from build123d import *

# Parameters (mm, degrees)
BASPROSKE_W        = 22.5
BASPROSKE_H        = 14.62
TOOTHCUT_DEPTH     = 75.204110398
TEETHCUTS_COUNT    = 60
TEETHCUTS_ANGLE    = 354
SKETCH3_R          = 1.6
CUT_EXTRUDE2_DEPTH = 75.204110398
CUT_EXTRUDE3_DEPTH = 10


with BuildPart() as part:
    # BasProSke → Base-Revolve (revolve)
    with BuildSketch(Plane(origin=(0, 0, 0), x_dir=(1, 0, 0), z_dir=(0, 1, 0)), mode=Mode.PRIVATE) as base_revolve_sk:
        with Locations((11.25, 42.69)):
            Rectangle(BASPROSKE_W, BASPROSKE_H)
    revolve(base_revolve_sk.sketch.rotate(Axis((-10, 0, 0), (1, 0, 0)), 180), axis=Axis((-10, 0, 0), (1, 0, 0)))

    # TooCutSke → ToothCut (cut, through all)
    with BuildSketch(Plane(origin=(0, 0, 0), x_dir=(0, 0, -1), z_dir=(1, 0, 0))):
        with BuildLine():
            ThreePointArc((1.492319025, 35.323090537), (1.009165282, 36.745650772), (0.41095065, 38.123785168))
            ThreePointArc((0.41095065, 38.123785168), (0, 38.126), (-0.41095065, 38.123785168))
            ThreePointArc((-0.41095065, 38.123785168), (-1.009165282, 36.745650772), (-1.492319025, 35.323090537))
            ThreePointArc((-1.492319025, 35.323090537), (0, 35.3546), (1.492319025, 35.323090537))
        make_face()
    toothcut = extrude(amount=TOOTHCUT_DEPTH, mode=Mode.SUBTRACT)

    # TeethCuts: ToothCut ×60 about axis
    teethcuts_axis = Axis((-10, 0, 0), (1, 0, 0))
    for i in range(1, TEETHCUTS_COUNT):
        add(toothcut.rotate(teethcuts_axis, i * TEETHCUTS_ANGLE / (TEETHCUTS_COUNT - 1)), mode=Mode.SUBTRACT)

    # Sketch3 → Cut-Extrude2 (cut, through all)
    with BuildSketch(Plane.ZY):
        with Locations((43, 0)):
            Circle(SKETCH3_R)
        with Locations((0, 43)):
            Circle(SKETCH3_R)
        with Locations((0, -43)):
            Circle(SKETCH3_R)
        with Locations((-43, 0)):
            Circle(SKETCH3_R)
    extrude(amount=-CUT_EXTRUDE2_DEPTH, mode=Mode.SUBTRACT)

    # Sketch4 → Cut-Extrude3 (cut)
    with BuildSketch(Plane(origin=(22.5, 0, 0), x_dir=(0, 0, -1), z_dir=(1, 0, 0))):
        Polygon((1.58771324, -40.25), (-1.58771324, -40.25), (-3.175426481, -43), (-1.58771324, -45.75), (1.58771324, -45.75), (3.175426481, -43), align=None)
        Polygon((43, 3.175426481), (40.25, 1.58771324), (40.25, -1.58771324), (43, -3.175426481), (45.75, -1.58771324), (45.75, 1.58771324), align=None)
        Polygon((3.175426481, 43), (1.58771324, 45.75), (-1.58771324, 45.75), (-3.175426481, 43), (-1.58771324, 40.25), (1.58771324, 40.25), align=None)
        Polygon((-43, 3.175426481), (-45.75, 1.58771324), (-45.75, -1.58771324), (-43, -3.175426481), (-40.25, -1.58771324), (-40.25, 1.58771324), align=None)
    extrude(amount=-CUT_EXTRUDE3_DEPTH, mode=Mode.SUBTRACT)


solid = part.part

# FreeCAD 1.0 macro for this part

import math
import FreeCAD as App
import Part
import Sketcher
from FreeCAD import Vector
Q = App.Units.Quantity


def add_polygon(sketch, points):
    """Adds a closed chain of lines whose ends are joined by coincident constraints."""
    first, n = sketch.GeometryCount, len(points)
    for a, b in zip(points, points[1:] + points[:1]):
        sketch.addGeometry(Part.LineSegment(App.Vector(*a, 0), App.Vector(*b, 0)), False)
    for i in range(n):
        sketch.addConstraint(Sketcher.Constraint("Coincident", first + i, 2, first + (i + 1) % n, 1))

doc = App.newDocument("Part")
body = doc.addObject("PartDesign::Body", "Body")

sketch1 = body.newObject("Sketcher::SketchObject", "Sketch")
sketch1.AttachmentSupport = (doc.getObject("XZ_Plane"), [""])
sketch1.MapMode = "FlatFace"
add_polygon(sketch1, [(0, -50), (0, -35.38), (22.5, -35.38), (22.5, -50)])
sketch1.addConstraint(Sketcher.Constraint("Vertical", 0))
sketch1.addConstraint(Sketcher.Constraint("Horizontal", 1))
sketch1.addConstraint(Sketcher.Constraint("Vertical", 2))
sketch1.addConstraint(Sketcher.Constraint("Horizontal", 3))
sketch1.addConstraint(Sketcher.Constraint("PointOnObject", 0, 2, -2))
sketch1.addConstraint(Sketcher.Constraint("DistanceX", 1, 1, 1, 2, Q("22.5 mm")))
sketch1.addConstraint(Sketcher.Constraint("DistanceY", 2, 2, -1, 1, Q("50 mm")))
sketch1.addConstraint(Sketcher.Constraint("DistanceY", 0, 1, 0, 2, Q("14.62 mm")))
revolution = body.newObject("PartDesign::Revolution", "Revolution")
revolution.Profile = sketch1
revolution.ReferenceAxis = (sketch1, ["H_Axis"])
revolution.Angle = 360

sketch2 = body.newObject("Sketcher::SketchObject", "Sketch001")
sketch2.AttachmentSupport = (doc.getObject("YZ_Plane"), [""])
sketch2.MapMode = "FlatFace"
sketch2.addGeometry(Part.ArcOfCircle(Part.Circle(Vector(30.154153, 16.062512, 0), Vector(0, 0, 1), 18.3), math.radians(-73.593183), math.radians(-64.182949)), False)
sketch2.addGeometry(Part.ArcOfCircle(Part.Circle(Vector(0.000006, 0, 0), Vector(0, 0, 1), 38.125994), math.radians(-0.617589), math.radians(0.617589)), False)
sketch2.addGeometry(Part.ArcOfCircle(Part.Circle(Vector(30.154153, -16.062512, 0), Vector(0, 0, 1), 18.3), math.radians(64.182949), math.radians(73.593183)), False)
sketch2.addGeometry(Part.ArcOfCircle(Part.Circle(Vector(0, 0, 0), Vector(0, 0, 1), 35.3546), math.radians(-2.419176), math.radians(2.419176)), False)
sketch2.addConstraint(Sketcher.Constraint("Coincident", 0, 2, 1, 1))
sketch2.addConstraint(Sketcher.Constraint("Coincident", 1, 2, 2, 1))
sketch2.addConstraint(Sketcher.Constraint("Coincident", 2, 2, 3, 2))
sketch2.addConstraint(Sketcher.Constraint("Coincident", 3, 1, 0, 1))
sketch2.addConstraint(Sketcher.Constraint("Coincident", 1, 3, -1, 1))
sketch2.addConstraint(Sketcher.Constraint("Coincident", 3, 3, -1, 1))
sketch2.addConstraint(Sketcher.Constraint("Equal", 0, 2))
sketch2.addConstraint(Sketcher.Constraint("Symmetric", 0, 3, 2, 3, -1))
sketch2.addConstraint(Sketcher.Constraint("Radius", 0, Q("18.3 mm")))
sketch2.addConstraint(Sketcher.Constraint("Radius", 3, Q("35.3546 mm")))
sketch2.addConstraint(Sketcher.Constraint("Radius", 1, Q("38.125994 mm")))
sketch2.addConstraint(Sketcher.Constraint("DistanceY", 0, 2, 1, 2, Q("0.821901 mm")))
sketch2.addConstraint(Sketcher.Constraint("DistanceY", -1, 1, 0, 3, Q("16.062512 mm")))
pocket1 = body.newObject("PartDesign::Pocket", "Pocket")
pocket1.Profile = sketch2
pocket1.Type = "ThroughAll"
pocket1.Reversed = True
doc.recompute()

polarpattern = body.newObject("PartDesign::PolarPattern", "PolarPattern")
polarpattern.Originals = [pocket1]
polarpattern.Axis = (doc.getObject("X_Axis"), [""])
polarpattern.Angle = 360
polarpattern.Occurrences = 60
body.Tip = polarpattern

sketch3 = body.newObject("Sketcher::SketchObject", "Sketch002")
sketch3.AttachmentSupport = (doc.getObject("YZ_Plane"), [""])
sketch3.MapMode = "FlatFace"
sketch3.addGeometry(Part.Circle(Vector(0, 43, 0), Vector(0, 0, 1), 1.6), False)
sketch3.addGeometry(Part.Circle(Vector(43, 0, 0), Vector(0, 0, 1), 1.6), False)
sketch3.addGeometry(Part.Circle(Vector(-43, 0, 0), Vector(0, 0, 1), 1.6), False)
sketch3.addGeometry(Part.Circle(Vector(0, -43, 0), Vector(0, 0, 1), 1.6), False)
sketch3.addConstraint(Sketcher.Constraint("Equal", 0, 1))
sketch3.addConstraint(Sketcher.Constraint("Equal", 1, 2))
sketch3.addConstraint(Sketcher.Constraint("Equal", 2, 3))
sketch3.addConstraint(Sketcher.Constraint("Symmetric", 1, 3, 2, 3, -1, 1))
sketch3.addConstraint(Sketcher.Constraint("Symmetric", 0, 3, 3, 3, -1, 1))
sketch3.addConstraint(Sketcher.Constraint("PointOnObject", 0, 3, -2))
sketch3.addConstraint(Sketcher.Constraint("PointOnObject", 1, 3, -1))
sketch3.addConstraint(Sketcher.Constraint("Diameter", 0, Q("3.2 mm")))
sketch3.addConstraint(Sketcher.Constraint("DistanceY", -1, 1, 0, 3, Q("43 mm")))
sketch3.addConstraint(Sketcher.Constraint("DistanceX", -1, 1, 1, 3, Q("43 mm")))
pocket2 = body.newObject("PartDesign::Pocket", "Pocket001")
pocket2.Profile = sketch3
pocket2.Type = "ThroughAll"
pocket2.Reversed = True

sketch4 = body.newObject("Sketcher::SketchObject", "Sketch003")
sketch4.AttachmentSupport = (doc.getObject("YZ_Plane"), [""])
sketch4.MapMode = "FlatFace"
sketch4.AttachmentOffset = App.Placement(Vector(0, 0, 22.5), App.Rotation())
add_polygon(sketch4, [(-40.25, -1.587713), (-40.25, 1.587713), (-43, 3.175426), (-45.75, 1.587713), (-45.75, -1.587713), (-43, -3.175426)])
add_polygon(sketch4, [(3.175426, -43), (1.587713, -40.25), (-1.587713, -40.25), (-3.175426, -43), (-1.587713, -45.75), (1.587713, -45.75)])
add_polygon(sketch4, [(43, -3.175426), (45.75, -1.587713), (45.75, 1.587713), (43, 3.175426), (40.25, 1.587713), (40.25, -1.587713)])
add_polygon(sketch4, [(3.175426, 43), (1.587713, 45.75), (-1.587713, 45.75), (-3.175426, 43), (-1.587713, 40.25), (1.587713, 40.25)])
sketch4.addConstraint(Sketcher.Constraint("Vertical", 0))
sketch4.addConstraint(Sketcher.Constraint("Vertical", 3))
sketch4.addConstraint(Sketcher.Constraint("Horizontal", 7))
sketch4.addConstraint(Sketcher.Constraint("Horizontal", 10))
sketch4.addConstraint(Sketcher.Constraint("Vertical", 13))
sketch4.addConstraint(Sketcher.Constraint("Vertical", 16))
sketch4.addConstraint(Sketcher.Constraint("Horizontal", 19))
sketch4.addConstraint(Sketcher.Constraint("Horizontal", 22))
sketch4.addConstraint(Sketcher.Constraint("Symmetric", 2, 2, 12, 2, -1, 1))
sketch4.addConstraint(Sketcher.Constraint("Symmetric", 4, 2, 14, 2, -1, 1))
sketch4.addConstraint(Sketcher.Constraint("Symmetric", 5, 2, 15, 2, -1, 1))
sketch4.addConstraint(Sketcher.Constraint("Symmetric", 1, 2, 17, 2, -1, 1))
sketch4.addConstraint(Sketcher.Constraint("Symmetric", 9, 2, 18, 2, -1, 1))
sketch4.addConstraint(Sketcher.Constraint("Symmetric", 11, 2, 20, 2, -1, 1))
sketch4.addConstraint(Sketcher.Constraint("Symmetric", 6, 2, 21, 2, -1, 1))
sketch4.addConstraint(Sketcher.Constraint("Symmetric", 8, 2, 23, 2, -1, 1))
sketch4.addConstraint(Sketcher.Constraint("Symmetric", 8, 2, 11, 2, -2))
sketch4.addConstraint(Sketcher.Constraint("Symmetric", 1, 2, 14, 2, -2))
sketch4.addConstraint(Sketcher.Constraint("Parallel", 1, 4))
sketch4.addConstraint(Sketcher.Constraint("Parallel", 2, 5))
sketch4.addConstraint(Sketcher.Constraint("Perpendicular", 5, 6))
sketch4.addConstraint(Sketcher.Constraint("Perpendicular", 4, 8))
sketch4.addConstraint(Sketcher.Constraint("Parallel", 6, 9))
sketch4.addConstraint(Sketcher.Constraint("Parallel", 8, 11))
sketch4.addConstraint(Sketcher.Constraint("Perpendicular", 11, 14))
sketch4.addConstraint(Sketcher.Constraint("Parallel", 14, 17))
sketch4.addConstraint(Sketcher.Constraint("Perpendicular", 17, 20))
sketch4.addConstraint(Sketcher.Constraint("Parallel", 20, 23))
sketch4.addConstraint(Sketcher.Constraint("Horizontal", 0, 2, 2, 2))
sketch4.addConstraint(Sketcher.Constraint("Horizontal", 3, 2, 5, 2))
sketch4.addConstraint(Sketcher.Constraint("Vertical", 7, 2, 9, 2))
sketch4.addConstraint(Sketcher.Constraint("Equal", 22, 0))
sketch4.addConstraint(Sketcher.Constraint("Equal", 5, 6))
sketch4.addConstraint(Sketcher.Constraint("Angle", 1, Q("150 deg")))
sketch4.addConstraint(Sketcher.Constraint("DistanceX", 1, 2, -1, 1, Q("43 mm")))
sketch4.addConstraint(Sketcher.Constraint("DistanceY", 8, 2, -1, 1, Q("43 mm")))
sketch4.addConstraint(Sketcher.Constraint("DistanceX", 2, 2, 0, 2, Q("5.5 mm")))
sketch4.addConstraint(Sketcher.Constraint("DistanceX", 7, 2, 7, 1, Q("3.175426 mm")))
pocket3 = body.newObject("PartDesign::Pocket", "Pocket002")
pocket3.Profile = sketch4
pocket3.Length = 10

doc.recompute()
